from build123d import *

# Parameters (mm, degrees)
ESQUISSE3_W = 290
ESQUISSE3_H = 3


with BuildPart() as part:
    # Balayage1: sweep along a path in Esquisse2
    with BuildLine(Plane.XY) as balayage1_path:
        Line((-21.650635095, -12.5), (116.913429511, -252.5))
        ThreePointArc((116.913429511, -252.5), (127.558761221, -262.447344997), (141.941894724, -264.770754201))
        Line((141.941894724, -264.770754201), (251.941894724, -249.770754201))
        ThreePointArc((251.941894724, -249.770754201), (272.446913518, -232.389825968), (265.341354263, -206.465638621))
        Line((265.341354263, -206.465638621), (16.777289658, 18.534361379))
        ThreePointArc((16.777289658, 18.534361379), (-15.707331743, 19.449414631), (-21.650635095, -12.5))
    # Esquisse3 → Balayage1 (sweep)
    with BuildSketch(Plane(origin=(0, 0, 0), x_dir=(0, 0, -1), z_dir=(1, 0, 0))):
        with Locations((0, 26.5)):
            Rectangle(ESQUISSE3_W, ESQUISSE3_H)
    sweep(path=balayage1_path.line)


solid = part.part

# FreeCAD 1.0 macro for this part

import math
import FreeCAD as App
import Part
import Sketcher

V = App.Vector
Q = App.Units.Quantity

doc = App.newDocument("Part")
body = doc.addObject("PartDesign::Body", "Body")

# Sketch on YZ plane
sketch1 = doc.addObject("Sketcher::SketchObject", "Sketch")
body.addObject(sketch1)
sketch1.AttachmentSupport = (doc.YZ_Plane, [""])
sketch1.MapMode = "FlatFace"
sketch1.addGeometry([
    Part.LineSegment(V(28, 145, 0), V(25, 145, 0)),
    Part.LineSegment(V(25, 145, 0), V(25, -145, 0)),
    Part.LineSegment(V(25, -145, 0), V(28, -145, 0)),
    Part.LineSegment(V(28, -145, 0), V(28, 145, 0)),
], False)
sketch1.addConstraint([
    Sketcher.Constraint("Coincident", 0, 2, 1, 1),
    Sketcher.Constraint("Coincident", 1, 2, 2, 1),
    Sketcher.Constraint("Coincident", 2, 2, 3, 1),
    Sketcher.Constraint("Coincident", 3, 2, 0, 1),
    Sketcher.Constraint("Horizontal", 0),
    Sketcher.Constraint("Vertical", 1),
    Sketcher.Constraint("Horizontal", 2),
    Sketcher.Constraint("Vertical", 3),
    Sketcher.Constraint("DistanceX", 0, 2, 0, 1, 3.0),
    Sketcher.Constraint("DistanceY", 1, 2, 1, 1, 290.0),
    Sketcher.Constraint("DistanceX", -1, 1, 0, 2, 25.0),
    Sketcher.Constraint("DistanceY", -1, 1, 0, 2, 145.0),
])

# Sketch on XY plane
sketch2 = doc.addObject("Sketcher::SketchObject", "Sketch001")
body.addObject(sketch2)
sketch2.AttachmentSupport = (doc.XY_Plane, [""])
sketch2.MapMode = "FlatFace"
sketch2.addGeometry([
    Part.LineSegment(V(-22, -12, 0), V(117, -252, 0)),  # 0
    Part.ArcOfCircle(Part.Circle(V(139, -240, 0), V(0, 0, 1), 25), math.radians(-150), math.radians(-82)),  # 1
    Part.LineSegment(V(142, -265, 0), V(252, -250, 0)),  # 2
    Part.ArcOfCircle(Part.Circle(V(249, -225, 0), V(0, 0, 1), 25), math.radians(-82), math.radians(48)),  # 3
    Part.LineSegment(V(265, -206, 0), V(17, 19, 0)),  # 4
    Part.ArcOfCircle(Part.Circle(V(0, 0, 0), V(0, 0, 1), 25), math.radians(48), math.radians(210)),  # 5
], False)
sketch2.addConstraint([
    Sketcher.Constraint("Tangent", 0, 2, 1, 1),
    Sketcher.Constraint("Tangent", 1, 2, 2, 1),
    Sketcher.Constraint("Tangent", 2, 2, 3, 1),
    Sketcher.Constraint("Tangent", 3, 2, 4, 1),
    Sketcher.Constraint("Tangent", 4, 2, 5, 1),
    Sketcher.Constraint("Tangent", 5, 2, 0, 1),
    Sketcher.Constraint("Coincident", 5, 3, -1, 1),
    Sketcher.Constraint("Equal", 1, 3),
    Sketcher.Constraint("Equal", 3, 5),
    Sketcher.Constraint("Radius", 1, 25.0),
    Sketcher.Constraint("Angle", 0, Q("-60 deg")),
    Sketcher.Constraint("DistanceY", 1, 3, -1, 1, 240.0),
    Sketcher.Constraint("DistanceY", 3, 3, -1, 1, 225.0),
    Sketcher.Constraint("DistanceX", 1, 3, 3, 3, 110.0),
])
doc.recompute()

additivepipe = doc.addObject("PartDesign::AdditivePipe", "AdditivePipe")
body.addObject(additivepipe)
additivepipe.Profile = sketch1
additivepipe.Spine = (sketch2, ["Edge1", "Edge2", "Edge3", "Edge4", "Edge5", "Edge6"])

doc.recompute()
